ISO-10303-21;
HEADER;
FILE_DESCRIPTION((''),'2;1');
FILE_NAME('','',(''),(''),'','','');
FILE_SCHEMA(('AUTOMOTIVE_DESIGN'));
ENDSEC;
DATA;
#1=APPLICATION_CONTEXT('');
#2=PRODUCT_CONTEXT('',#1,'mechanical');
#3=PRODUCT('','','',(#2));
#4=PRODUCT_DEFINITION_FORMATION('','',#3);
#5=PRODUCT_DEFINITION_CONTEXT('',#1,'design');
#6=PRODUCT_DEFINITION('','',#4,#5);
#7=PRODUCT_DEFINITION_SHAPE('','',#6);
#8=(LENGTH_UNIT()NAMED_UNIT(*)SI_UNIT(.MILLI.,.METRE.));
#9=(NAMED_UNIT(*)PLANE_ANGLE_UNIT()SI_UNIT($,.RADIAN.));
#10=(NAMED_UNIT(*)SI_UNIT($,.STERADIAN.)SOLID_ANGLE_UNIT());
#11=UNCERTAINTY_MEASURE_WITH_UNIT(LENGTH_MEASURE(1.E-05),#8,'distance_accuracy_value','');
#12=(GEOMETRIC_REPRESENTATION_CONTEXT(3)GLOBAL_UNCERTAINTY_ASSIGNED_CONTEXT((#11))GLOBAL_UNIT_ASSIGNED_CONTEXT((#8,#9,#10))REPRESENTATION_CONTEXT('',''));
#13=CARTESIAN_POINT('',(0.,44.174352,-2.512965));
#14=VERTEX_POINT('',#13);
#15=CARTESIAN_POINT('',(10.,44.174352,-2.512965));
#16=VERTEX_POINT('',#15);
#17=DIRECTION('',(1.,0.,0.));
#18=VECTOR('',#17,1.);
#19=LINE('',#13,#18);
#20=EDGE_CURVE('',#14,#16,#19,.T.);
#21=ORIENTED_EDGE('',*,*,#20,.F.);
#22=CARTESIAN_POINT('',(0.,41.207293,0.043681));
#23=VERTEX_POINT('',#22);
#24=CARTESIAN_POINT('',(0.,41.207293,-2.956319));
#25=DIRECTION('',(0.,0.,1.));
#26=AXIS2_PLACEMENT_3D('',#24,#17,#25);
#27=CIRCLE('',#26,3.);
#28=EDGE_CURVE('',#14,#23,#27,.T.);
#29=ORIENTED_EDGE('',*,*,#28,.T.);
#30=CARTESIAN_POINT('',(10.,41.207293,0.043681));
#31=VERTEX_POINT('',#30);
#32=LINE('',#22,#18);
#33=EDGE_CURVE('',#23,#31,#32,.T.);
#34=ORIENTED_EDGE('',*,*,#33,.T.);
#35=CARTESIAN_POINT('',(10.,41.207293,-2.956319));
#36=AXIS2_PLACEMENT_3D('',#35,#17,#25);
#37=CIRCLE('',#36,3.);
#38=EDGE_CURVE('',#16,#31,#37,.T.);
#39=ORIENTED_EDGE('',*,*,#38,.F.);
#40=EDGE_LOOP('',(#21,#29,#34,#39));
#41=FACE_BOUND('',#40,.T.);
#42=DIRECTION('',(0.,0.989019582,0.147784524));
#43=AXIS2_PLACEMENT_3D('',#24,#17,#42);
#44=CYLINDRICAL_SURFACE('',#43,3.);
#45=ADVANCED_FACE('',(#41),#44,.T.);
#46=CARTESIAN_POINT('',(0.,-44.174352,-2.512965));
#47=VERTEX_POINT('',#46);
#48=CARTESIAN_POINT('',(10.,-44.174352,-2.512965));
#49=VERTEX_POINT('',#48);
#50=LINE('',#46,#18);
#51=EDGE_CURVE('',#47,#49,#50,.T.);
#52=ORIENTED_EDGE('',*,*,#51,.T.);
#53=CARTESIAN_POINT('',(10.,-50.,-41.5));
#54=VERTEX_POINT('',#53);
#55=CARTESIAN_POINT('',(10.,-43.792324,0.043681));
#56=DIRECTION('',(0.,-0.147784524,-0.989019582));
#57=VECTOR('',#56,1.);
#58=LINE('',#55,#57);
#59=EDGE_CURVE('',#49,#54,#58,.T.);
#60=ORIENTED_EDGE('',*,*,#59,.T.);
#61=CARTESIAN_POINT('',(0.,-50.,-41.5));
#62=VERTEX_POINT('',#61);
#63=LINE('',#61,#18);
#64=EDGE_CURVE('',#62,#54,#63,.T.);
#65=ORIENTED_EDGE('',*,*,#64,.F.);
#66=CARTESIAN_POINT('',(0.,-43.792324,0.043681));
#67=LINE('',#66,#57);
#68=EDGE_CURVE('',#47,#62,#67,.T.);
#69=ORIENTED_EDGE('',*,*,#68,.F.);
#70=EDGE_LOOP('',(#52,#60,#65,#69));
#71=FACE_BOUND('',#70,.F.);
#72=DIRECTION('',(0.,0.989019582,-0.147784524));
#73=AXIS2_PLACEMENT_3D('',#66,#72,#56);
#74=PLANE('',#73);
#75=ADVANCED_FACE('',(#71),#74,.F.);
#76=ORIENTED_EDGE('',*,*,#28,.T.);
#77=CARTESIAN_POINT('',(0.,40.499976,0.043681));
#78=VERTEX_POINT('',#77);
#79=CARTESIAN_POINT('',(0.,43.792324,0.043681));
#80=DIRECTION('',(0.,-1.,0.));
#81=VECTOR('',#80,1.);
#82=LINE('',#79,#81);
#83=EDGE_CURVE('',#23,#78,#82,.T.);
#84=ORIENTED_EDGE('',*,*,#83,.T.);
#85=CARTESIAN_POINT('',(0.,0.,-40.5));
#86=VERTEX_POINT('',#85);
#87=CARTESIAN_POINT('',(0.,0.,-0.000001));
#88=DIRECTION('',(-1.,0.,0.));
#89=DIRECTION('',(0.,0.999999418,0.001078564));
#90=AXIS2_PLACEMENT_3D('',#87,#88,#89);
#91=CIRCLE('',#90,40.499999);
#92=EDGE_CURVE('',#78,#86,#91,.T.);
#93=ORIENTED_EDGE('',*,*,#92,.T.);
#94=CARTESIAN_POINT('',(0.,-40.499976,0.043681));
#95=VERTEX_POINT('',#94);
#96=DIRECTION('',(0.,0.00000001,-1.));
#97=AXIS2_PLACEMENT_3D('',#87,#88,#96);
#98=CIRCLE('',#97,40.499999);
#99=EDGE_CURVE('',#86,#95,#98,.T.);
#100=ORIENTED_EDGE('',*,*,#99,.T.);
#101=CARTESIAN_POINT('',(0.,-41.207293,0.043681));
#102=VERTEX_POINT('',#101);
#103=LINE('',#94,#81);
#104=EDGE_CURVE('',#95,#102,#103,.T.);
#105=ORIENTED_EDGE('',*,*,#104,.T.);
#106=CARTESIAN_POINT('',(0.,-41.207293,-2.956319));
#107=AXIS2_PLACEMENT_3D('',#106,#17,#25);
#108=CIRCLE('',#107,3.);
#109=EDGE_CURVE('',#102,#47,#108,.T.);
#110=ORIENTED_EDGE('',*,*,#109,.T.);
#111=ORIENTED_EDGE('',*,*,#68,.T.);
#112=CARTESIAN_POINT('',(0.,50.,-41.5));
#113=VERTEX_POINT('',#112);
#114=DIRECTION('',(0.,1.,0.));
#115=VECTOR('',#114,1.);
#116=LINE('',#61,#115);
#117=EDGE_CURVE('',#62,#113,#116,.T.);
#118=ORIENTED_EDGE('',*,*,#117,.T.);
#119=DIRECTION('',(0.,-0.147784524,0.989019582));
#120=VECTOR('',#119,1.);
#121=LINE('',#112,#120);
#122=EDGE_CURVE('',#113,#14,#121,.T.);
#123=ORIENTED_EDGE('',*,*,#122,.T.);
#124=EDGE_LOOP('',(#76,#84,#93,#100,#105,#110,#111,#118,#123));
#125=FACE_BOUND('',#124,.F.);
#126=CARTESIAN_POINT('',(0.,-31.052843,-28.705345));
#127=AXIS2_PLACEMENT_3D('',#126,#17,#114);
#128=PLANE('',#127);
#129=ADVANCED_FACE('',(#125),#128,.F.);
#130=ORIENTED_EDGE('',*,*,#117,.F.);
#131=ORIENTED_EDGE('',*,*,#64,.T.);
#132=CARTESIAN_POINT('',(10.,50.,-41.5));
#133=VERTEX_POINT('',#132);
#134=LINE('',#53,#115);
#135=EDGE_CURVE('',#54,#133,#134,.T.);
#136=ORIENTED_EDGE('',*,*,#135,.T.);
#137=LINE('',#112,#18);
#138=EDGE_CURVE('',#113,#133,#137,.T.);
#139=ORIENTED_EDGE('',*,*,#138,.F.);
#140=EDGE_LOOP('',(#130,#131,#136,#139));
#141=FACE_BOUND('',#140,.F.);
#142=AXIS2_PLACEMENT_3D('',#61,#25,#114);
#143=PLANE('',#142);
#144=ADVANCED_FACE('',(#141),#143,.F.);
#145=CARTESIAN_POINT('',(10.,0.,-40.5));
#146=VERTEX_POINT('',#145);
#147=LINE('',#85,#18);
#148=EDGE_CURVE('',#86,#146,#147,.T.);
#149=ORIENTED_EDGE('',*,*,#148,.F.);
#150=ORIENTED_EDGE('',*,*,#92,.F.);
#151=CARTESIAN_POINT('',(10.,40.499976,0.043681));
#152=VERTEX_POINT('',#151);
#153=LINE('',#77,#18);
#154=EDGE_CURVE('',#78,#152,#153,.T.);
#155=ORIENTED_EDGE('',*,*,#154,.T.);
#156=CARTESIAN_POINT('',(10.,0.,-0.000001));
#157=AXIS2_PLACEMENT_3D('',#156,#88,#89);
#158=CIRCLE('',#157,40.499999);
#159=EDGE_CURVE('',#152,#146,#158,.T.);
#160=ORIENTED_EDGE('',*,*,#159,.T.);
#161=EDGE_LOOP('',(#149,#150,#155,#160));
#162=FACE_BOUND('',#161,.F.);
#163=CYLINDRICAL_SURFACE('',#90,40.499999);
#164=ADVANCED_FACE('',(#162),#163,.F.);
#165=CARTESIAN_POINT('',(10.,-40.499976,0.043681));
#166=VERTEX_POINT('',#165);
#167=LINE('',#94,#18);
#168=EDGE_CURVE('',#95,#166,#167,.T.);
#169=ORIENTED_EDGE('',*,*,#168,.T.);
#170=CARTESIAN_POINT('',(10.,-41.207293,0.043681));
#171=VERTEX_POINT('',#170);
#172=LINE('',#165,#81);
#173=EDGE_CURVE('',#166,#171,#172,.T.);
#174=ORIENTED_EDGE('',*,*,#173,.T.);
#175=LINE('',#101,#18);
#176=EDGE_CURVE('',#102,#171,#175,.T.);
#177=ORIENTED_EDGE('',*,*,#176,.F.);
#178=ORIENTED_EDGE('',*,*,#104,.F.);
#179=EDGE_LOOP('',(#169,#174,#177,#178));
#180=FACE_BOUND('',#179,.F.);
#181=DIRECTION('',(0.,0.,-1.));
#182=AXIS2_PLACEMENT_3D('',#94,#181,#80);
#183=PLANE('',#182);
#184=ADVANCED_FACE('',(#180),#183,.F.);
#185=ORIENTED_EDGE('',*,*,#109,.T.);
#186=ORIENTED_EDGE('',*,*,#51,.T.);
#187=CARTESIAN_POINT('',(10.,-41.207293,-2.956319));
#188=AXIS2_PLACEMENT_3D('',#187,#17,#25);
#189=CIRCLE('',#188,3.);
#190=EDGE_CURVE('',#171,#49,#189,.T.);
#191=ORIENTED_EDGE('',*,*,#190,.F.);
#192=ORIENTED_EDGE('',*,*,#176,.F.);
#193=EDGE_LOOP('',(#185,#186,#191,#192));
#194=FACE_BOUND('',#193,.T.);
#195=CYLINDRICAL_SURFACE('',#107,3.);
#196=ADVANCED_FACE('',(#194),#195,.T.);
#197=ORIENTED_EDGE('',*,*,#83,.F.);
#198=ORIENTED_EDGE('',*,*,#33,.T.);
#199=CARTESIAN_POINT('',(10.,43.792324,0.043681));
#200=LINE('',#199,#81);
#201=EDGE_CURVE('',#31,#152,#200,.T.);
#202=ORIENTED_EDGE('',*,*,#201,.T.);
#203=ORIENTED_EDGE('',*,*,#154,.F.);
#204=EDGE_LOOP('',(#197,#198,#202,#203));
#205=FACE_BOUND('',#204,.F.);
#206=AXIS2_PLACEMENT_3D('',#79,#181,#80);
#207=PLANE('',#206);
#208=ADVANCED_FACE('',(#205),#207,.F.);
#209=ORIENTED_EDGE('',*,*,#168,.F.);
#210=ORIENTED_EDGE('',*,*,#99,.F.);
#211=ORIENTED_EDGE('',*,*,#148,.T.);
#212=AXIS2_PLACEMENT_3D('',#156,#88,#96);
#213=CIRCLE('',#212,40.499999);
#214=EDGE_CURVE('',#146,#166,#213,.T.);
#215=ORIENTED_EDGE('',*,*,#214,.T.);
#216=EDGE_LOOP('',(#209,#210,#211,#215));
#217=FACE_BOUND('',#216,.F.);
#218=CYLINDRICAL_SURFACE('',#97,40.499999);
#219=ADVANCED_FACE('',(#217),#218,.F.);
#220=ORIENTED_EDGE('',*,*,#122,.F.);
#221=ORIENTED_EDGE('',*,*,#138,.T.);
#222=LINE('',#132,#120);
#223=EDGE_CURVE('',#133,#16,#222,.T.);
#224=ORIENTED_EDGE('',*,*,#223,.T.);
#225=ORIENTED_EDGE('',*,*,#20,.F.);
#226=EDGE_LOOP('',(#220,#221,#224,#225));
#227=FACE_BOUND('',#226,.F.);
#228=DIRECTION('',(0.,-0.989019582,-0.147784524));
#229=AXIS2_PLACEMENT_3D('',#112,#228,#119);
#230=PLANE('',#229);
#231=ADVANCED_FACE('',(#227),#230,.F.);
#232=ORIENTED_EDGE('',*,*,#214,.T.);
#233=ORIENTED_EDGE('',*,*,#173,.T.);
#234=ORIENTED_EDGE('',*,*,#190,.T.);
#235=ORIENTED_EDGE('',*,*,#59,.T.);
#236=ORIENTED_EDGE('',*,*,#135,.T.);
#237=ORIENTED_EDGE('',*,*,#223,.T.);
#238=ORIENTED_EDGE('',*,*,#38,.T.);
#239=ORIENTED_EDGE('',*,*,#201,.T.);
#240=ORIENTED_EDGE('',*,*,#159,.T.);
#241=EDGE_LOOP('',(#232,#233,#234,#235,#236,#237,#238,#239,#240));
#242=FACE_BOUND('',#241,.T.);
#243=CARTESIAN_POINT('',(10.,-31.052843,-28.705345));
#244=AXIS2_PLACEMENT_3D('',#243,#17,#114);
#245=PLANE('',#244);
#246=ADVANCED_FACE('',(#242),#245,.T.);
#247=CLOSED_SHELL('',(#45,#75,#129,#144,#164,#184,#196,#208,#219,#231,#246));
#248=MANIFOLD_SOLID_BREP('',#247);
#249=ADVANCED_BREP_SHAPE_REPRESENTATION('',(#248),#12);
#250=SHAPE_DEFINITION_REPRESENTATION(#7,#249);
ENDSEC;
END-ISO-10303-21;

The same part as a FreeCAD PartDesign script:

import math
import FreeCAD as App
import Part
import Sketcher

V = App.Vector


def edges_at(feature, points):
    """Names of the edges that pass closest to the given points."""
    edges = feature.Shape.Edges
    near = lambda p: min(range(len(edges)), key=lambda i: edges[i].distToShape(Part.Vertex(*p))[0])
    return sorted({f"Edge{near(p) + 1}" for p in points})

doc = App.newDocument("Part")
body = doc.addObject("PartDesign::Body", "Body")

sketch1 = doc.addObject("Sketcher::SketchObject", "Sketch")
body.addObject(sketch1)
sketch1.AttachmentSupport = (doc.YZ_Plane, [""])
sketch1.MapMode = "FlatFace"
sketch1.addGeometry([
    Part.ArcOfCircle(Part.Circle(V(0, -0.000001, 0), V(0, 0, 1), 40.499999), math.radians(179.938203), math.radians(270.000001)),
    Part.LineSegment(V(-40.499976, 0.043681, 0), V(-43.792324, 0.043681, 0)),
    Part.LineSegment(V(-43.792324, 0.043681, 0), V(-50, -41.5, 0)),
    Part.LineSegment(V(-50, -41.5, 0), V(50, -41.5, 0)),
    Part.LineSegment(V(50, -41.5, 0), V(43.792324, 0.043681, 0)),
    Part.LineSegment(V(43.792324, 0.043681, 0), V(40.499976, 0.043681, 0)),
    Part.ArcOfCircle(Part.Circle(V(0, -0.000001, 0), V(0, 0, 1), 40.499999), math.radians(-90.000001), math.radians(0.061797)),
], False)
sketch1.addConstraint([
    Sketcher.Constraint("Coincident", 0, 1, 1, 1),
    Sketcher.Constraint("Coincident", 1, 2, 2, 1),
    Sketcher.Constraint("Coincident", 2, 2, 3, 1),
    Sketcher.Constraint("Coincident", 3, 2, 4, 1),
    Sketcher.Constraint("Coincident", 4, 2, 5, 1),
    Sketcher.Constraint("Coincident", 5, 2, 6, 2),
    Sketcher.Constraint("Tangent", 6, 1, 0, 2),
    Sketcher.Constraint("Horizontal", 1),
    Sketcher.Constraint("Horizontal", 3),
    Sketcher.Constraint("Horizontal", 5),
    Sketcher.Constraint("Coincident", 0, 3, -1, 1),
    Sketcher.Constraint("Equal", 0, 6),
    Sketcher.Constraint("Symmetric", 1, 2, 4, 2, -2),
    Sketcher.Constraint("PointOnObject", 6, 1, -2),
    Sketcher.Constraint("Equal", 2, 4),
    Sketcher.Constraint("Radius", 0, 40.499999),
    Sketcher.Constraint("DistanceX", 3, 1, 3, 2, 100.0),
    Sketcher.Constraint("DistanceY", 2, 2, 6, 1, 1.0),
    Sketcher.Constraint("DistanceX", 1, 2, 1, 1, 3.292348),
    Sketcher.Constraint("DistanceY", -1, 1, 0, 1, 0.043681),
])
pad1 = doc.addObject("PartDesign::Pad", "Pad")
body.addObject(pad1)
pad1.Profile = sketch1
pad1.Length = 10
doc.recompute()

fillet = doc.addObject("PartDesign::Fillet", "Fillet")
body.addObject(fillet)
fillet.Base = (pad1, edges_at(pad1, [(5, -43.792, 0.044), (5, 43.792, 0.044)]))
fillet.Radius = 3

doc.recompute()
